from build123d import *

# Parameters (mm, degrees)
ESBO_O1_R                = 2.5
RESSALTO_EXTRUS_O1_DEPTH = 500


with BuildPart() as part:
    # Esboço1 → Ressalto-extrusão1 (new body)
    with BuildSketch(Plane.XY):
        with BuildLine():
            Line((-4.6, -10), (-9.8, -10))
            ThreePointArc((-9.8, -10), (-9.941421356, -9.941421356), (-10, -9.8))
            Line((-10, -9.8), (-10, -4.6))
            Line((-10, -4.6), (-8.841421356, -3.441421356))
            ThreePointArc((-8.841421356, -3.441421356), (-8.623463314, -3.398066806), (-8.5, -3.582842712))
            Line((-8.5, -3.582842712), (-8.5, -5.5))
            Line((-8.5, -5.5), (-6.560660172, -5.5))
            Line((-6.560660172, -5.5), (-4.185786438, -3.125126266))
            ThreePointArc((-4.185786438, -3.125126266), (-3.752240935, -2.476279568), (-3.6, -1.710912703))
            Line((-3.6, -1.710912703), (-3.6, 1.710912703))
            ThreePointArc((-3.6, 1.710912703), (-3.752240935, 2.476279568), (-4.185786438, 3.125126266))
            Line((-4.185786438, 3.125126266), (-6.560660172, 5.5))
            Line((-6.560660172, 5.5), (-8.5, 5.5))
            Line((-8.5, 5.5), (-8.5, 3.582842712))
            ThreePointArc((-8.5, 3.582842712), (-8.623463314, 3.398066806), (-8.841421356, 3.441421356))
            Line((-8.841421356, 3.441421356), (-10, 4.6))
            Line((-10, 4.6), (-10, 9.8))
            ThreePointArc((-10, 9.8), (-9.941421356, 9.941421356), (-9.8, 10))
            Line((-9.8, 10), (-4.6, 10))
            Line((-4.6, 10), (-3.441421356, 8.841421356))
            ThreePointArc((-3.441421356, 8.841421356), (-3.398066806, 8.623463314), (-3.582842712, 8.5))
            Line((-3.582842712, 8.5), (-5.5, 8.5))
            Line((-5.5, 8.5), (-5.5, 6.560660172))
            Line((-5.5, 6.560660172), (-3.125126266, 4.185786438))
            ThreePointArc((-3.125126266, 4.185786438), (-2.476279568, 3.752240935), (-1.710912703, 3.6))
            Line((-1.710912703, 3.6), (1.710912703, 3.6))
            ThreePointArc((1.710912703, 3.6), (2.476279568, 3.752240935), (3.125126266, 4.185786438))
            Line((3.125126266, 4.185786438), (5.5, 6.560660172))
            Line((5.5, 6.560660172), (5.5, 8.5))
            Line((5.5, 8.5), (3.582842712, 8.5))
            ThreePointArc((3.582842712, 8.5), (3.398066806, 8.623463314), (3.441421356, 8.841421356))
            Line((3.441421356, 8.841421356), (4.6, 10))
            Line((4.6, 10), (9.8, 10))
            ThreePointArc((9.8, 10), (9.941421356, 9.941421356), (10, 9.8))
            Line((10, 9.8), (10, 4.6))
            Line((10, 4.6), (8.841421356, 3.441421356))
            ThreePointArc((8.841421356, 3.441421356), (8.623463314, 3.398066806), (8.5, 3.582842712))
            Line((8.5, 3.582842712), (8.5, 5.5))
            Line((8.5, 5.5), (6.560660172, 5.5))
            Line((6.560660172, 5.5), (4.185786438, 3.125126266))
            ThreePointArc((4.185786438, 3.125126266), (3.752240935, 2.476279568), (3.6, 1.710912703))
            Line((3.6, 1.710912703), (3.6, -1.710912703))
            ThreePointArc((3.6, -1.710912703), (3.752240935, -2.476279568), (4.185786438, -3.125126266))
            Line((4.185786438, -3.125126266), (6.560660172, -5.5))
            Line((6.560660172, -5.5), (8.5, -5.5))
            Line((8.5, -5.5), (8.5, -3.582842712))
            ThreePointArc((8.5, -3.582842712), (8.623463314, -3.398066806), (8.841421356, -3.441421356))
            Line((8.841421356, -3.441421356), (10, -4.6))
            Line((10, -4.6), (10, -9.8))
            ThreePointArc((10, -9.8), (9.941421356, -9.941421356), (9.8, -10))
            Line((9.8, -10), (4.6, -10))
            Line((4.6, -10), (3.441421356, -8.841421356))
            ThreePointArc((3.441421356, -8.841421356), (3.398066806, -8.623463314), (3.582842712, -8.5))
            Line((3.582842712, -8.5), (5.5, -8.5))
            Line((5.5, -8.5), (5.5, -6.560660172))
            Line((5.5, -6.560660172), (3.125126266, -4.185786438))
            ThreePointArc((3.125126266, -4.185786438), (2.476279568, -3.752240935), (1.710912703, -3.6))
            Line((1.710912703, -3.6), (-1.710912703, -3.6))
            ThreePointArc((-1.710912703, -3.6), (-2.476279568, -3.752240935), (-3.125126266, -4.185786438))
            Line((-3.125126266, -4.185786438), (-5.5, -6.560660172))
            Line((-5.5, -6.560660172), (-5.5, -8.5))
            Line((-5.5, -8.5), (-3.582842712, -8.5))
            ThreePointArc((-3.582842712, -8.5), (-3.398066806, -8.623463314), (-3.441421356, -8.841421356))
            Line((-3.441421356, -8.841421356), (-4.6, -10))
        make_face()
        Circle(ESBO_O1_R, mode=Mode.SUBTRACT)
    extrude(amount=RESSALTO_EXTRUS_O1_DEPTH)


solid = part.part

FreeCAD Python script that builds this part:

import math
import FreeCAD as App
import Part
import Sketcher

doc = App.newDocument("Part")
body = doc.addObject("PartDesign::Body", "Body")

sketch1 = body.newObject("Sketcher::SketchObject", "Sketch")
sketch1.AttachmentSupport = (doc.getObject("XY_Plane"), [""])
sketch1.MapMode = "FlatFace"
sketch1.addGeometry([
    Part.LineSegment(App.Vector(-9.8, -10, 0), App.Vector(-4.6, -10, 0)),
    Part.LineSegment(App.Vector(-4.6, -10, 0), App.Vector(-3.44, -8.84, 0)),
    Part.ArcOfCircle(Part.Circle(App.Vector(-3.58, -8.7, 0), App.Vector(0, 0, 1), 0.2), math.radians(-45), math.radians(90)),
    Part.LineSegment(App.Vector(-3.58, -8.5, 0), App.Vector(-5.5, -8.5, 0)),
    Part.LineSegment(App.Vector(-5.5, -8.5, 0), App.Vector(-5.5, -6.56, 0)),
    Part.LineSegment(App.Vector(-5.5, -6.56, 0), App.Vector(-3.13, -4.19, 0)),
    Part.ArcOfCircle(Part.Circle(App.Vector(-1.71, -5.6, 0), App.Vector(0, 0, 1), 2), math.radians(90), math.radians(135)),
    Part.LineSegment(App.Vector(-1.71, -3.6, 0), App.Vector(1.71, -3.6, 0)),
    Part.ArcOfCircle(Part.Circle(App.Vector(1.71, -5.6, 0), App.Vector(0, 0, 1), 2), math.radians(45), math.radians(90)),
    Part.LineSegment(App.Vector(3.13, -4.19, 0), App.Vector(5.5, -6.56, 0)),
    Part.LineSegment(App.Vector(5.5, -6.56, 0), App.Vector(5.5, -8.5, 0)),
    Part.LineSegment(App.Vector(5.5, -8.5, 0), App.Vector(3.58, -8.5, 0)),
    Part.ArcOfCircle(Part.Circle(App.Vector(3.58, -8.7, 0), App.Vector(0, 0, 1), 0.2), math.radians(90), math.radians(225)),
    Part.LineSegment(App.Vector(3.44, -8.84, 0), App.Vector(4.6, -10, 0)),
    Part.LineSegment(App.Vector(4.6, -10, 0), App.Vector(9.8, -10, 0)),
    Part.ArcOfCircle(Part.Circle(App.Vector(9.8, -9.8, 0), App.Vector(0, 0, 1), 0.2), math.radians(-90), math.radians(0)),
    Part.LineSegment(App.Vector(10, -9.8, 0), App.Vector(10, -4.6, 0)),
    Part.LineSegment(App.Vector(10, -4.6, 0), App.Vector(8.84, -3.44, 0)),
    Part.ArcOfCircle(Part.Circle(App.Vector(8.7, -3.58, 0), App.Vector(0, 0, 1), 0.2), math.radians(45), math.radians(180)),
    Part.LineSegment(App.Vector(8.5, -3.58, 0), App.Vector(8.5, -5.5, 0)),
    Part.LineSegment(App.Vector(8.5, -5.5, 0), App.Vector(6.56, -5.5, 0)),
    Part.LineSegment(App.Vector(6.56, -5.5, 0), App.Vector(4.19, -3.13, 0)),
    Part.ArcOfCircle(Part.Circle(App.Vector(5.6, -1.71, 0), App.Vector(0, 0, 1), 2), math.radians(180), math.radians(225)),
    Part.LineSegment(App.Vector(3.6, -1.71, 0), App.Vector(3.6, 1.71, 0)),
    Part.ArcOfCircle(Part.Circle(App.Vector(5.6, 1.71, 0), App.Vector(0, 0, 1), 2), math.radians(135), math.radians(180)),
    Part.LineSegment(App.Vector(4.19, 3.13, 0), App.Vector(6.56, 5.5, 0)),
    Part.LineSegment(App.Vector(6.56, 5.5, 0), App.Vector(8.5, 5.5, 0)),
    Part.LineSegment(App.Vector(8.5, 5.5, 0), App.Vector(8.5, 3.58, 0)),
    Part.ArcOfCircle(Part.Circle(App.Vector(8.7, 3.58, 0), App.Vector(0, 0, 1), 0.2), math.radians(-180), math.radians(-45)),
    Part.LineSegment(App.Vector(8.84, 3.44, 0), App.Vector(10, 4.6, 0)),
    Part.LineSegment(App.Vector(10, 4.6, 0), App.Vector(10, 9.8, 0)),
    Part.ArcOfCircle(Part.Circle(App.Vector(9.8, 9.8, 0), App.Vector(0, 0, 1), 0.2), math.radians(0), math.radians(90)),
    Part.LineSegment(App.Vector(9.8, 10, 0), App.Vector(4.6, 10, 0)),
    Part.LineSegment(App.Vector(4.6, 10, 0), App.Vector(3.44, 8.84, 0)),
    Part.ArcOfCircle(Part.Circle(App.Vector(3.58, 8.7, 0), App.Vector(0, 0, 1), 0.2), math.radians(135), math.radians(270)),
    Part.LineSegment(App.Vector(3.58, 8.5, 0), App.Vector(5.5, 8.5, 0)),
    Part.LineSegment(App.Vector(5.5, 8.5, 0), App.Vector(5.5, 6.56, 0)),
    Part.LineSegment(App.Vector(5.5, 6.56, 0), App.Vector(3.13, 4.19, 0)),
    Part.ArcOfCircle(Part.Circle(App.Vector(1.71, 5.6, 0), App.Vector(0, 0, 1), 2), math.radians(-90), math.radians(-45)),
    Part.LineSegment(App.Vector(1.71, 3.6, 0), App.Vector(-1.71, 3.6, 0)),
    Part.ArcOfCircle(Part.Circle(App.Vector(-1.71, 5.6, 0), App.Vector(0, 0, 1), 2), math.radians(-135), math.radians(-90)),
    Part.LineSegment(App.Vector(-3.13, 4.19, 0), App.Vector(-5.5, 6.56, 0)),
    Part.LineSegment(App.Vector(-5.5, 6.56, 0), App.Vector(-5.5, 8.5, 0)),
    Part.LineSegment(App.Vector(-5.5, 8.5, 0), App.Vector(-3.58, 8.5, 0)),
    Part.ArcOfCircle(Part.Circle(App.Vector(-3.58, 8.7, 0), App.Vector(0, 0, 1), 0.2), math.radians(-90), math.radians(45)),
    Part.LineSegment(App.Vector(-3.44, 8.84, 0), App.Vector(-4.6, 10, 0)),
    Part.LineSegment(App.Vector(-4.6, 10, 0), App.Vector(-9.8, 10, 0)),
    Part.ArcOfCircle(Part.Circle(App.Vector(-9.8, 9.8, 0), App.Vector(0, 0, 1), 0.2), math.radians(90), math.radians(180)),
    Part.LineSegment(App.Vector(-10, 9.8, 0), App.Vector(-10, 4.6, 0)),
    Part.LineSegment(App.Vector(-10, 4.6, 0), App.Vector(-8.84, 3.44, 0)),
    Part.ArcOfCircle(Part.Circle(App.Vector(-8.7, 3.58, 0), App.Vector(0, 0, 1), 0.2), math.radians(-135), math.radians(0)),
    Part.LineSegment(App.Vector(-8.5, 3.58, 0), App.Vector(-8.5, 5.5, 0)),
    Part.LineSegment(App.Vector(-8.5, 5.5, 0), App.Vector(-6.56, 5.5, 0)),
    Part.LineSegment(App.Vector(-6.56, 5.5, 0), App.Vector(-4.19, 3.13, 0)),
    Part.ArcOfCircle(Part.Circle(App.Vector(-5.6, 1.71, 0), App.Vector(0, 0, 1), 2), math.radians(0), math.radians(45)),
    Part.LineSegment(App.Vector(-3.6, 1.71, 0), App.Vector(-3.6, -1.71, 0)),
    Part.ArcOfCircle(Part.Circle(App.Vector(-5.6, -1.71, 0), App.Vector(0, 0, 1), 2), math.radians(-45), math.radians(0)),
    Part.LineSegment(App.Vector(-4.19, -3.13, 0), App.Vector(-6.56, -5.5, 0)),
    Part.LineSegment(App.Vector(-6.56, -5.5, 0), App.Vector(-8.5, -5.5, 0)),
    Part.LineSegment(App.Vector(-8.5, -5.5, 0), App.Vector(-8.5, -3.58, 0)),
    Part.ArcOfCircle(Part.Circle(App.Vector(-8.7, -3.58, 0), App.Vector(0, 0, 1), 0.2), math.radians(0), math.radians(135)),
    Part.LineSegment(App.Vector(-8.84, -3.44, 0), App.Vector(-10, -4.6, 0)),
    Part.LineSegment(App.Vector(-10, -4.6, 0), App.Vector(-10, -9.8, 0)),
    Part.ArcOfCircle(Part.Circle(App.Vector(-9.8, -9.8, 0), App.Vector(0, 0, 1), 0.2), math.radians(-180), math.radians(-90)),
    Part.Circle(App.Vector(0, 0, 0), App.Vector(0, 0, 1), 2.5),
], False)
sketch1.addConstraint([
    Sketcher.Constraint("Coincident", 0, 2, 1, 1),
    Sketcher.Constraint("Tangent", 1, 2, 2, 1),
    Sketcher.Constraint("Tangent", 2, 2, 3, 1),
    Sketcher.Constraint("Coincident", 3, 2, 4, 1),
    Sketcher.Constraint("Coincident", 4, 2, 5, 1),
    Sketcher.Constraint("Tangent", 5, 2, 6, 2),
    Sketcher.Constraint("Tangent", 6, 1, 7, 1),
    Sketcher.Constraint("Tangent", 7, 2, 8, 2),
    Sketcher.Constraint("Tangent", 8, 1, 9, 1),
    Sketcher.Constraint("Coincident", 9, 2, 10, 1),
    Sketcher.Constraint("Coincident", 10, 2, 11, 1),
    Sketcher.Constraint("Tangent", 11, 2, 12, 1),
    Sketcher.Constraint("Tangent", 12, 2, 13, 1),
    Sketcher.Constraint("Coincident", 13, 2, 14, 1),
    Sketcher.Constraint("Tangent", 14, 2, 15, 1),
    Sketcher.Constraint("Tangent", 15, 2, 16, 1),
    Sketcher.Constraint("Coincident", 16, 2, 17, 1),
    Sketcher.Constraint("Tangent", 17, 2, 18, 1),
    Sketcher.Constraint("Tangent", 18, 2, 19, 1),
    Sketcher.Constraint("Coincident", 19, 2, 20, 1),
    Sketcher.Constraint("Coincident", 20, 2, 21, 1),
    Sketcher.Constraint("Tangent", 21, 2, 22, 2),
    Sketcher.Constraint("Tangent", 22, 1, 23, 1),
    Sketcher.Constraint("Tangent", 23, 2, 24, 2),
    Sketcher.Constraint("Tangent", 24, 1, 25, 1),
    Sketcher.Constraint("Coincident", 25, 2, 26, 1),
    Sketcher.Constraint("Coincident", 26, 2, 27, 1),
    Sketcher.Constraint("Tangent", 27, 2, 28, 1),
    Sketcher.Constraint("Tangent", 28, 2, 29, 1),
    Sketcher.Constraint("Coincident", 29, 2, 30, 1),
    Sketcher.Constraint("Tangent", 30, 2, 31, 1),
    Sketcher.Constraint("Tangent", 31, 2, 32, 1),
    Sketcher.Constraint("Coincident", 32, 2, 33, 1),
    Sketcher.Constraint("Tangent", 33, 2, 34, 1),
    Sketcher.Constraint("Tangent", 34, 2, 35, 1),
    Sketcher.Constraint("Coincident", 35, 2, 36, 1),
    Sketcher.Constraint("Coincident", 36, 2, 37, 1),
    Sketcher.Constraint("Tangent", 37, 2, 38, 2),
    Sketcher.Constraint("Tangent", 38, 1, 39, 1),
    Sketcher.Constraint("Tangent", 39, 2, 40, 2),
    Sketcher.Constraint("Tangent", 40, 1, 41, 1),
    Sketcher.Constraint("Coincident", 41, 2, 42, 1),
    Sketcher.Constraint("Coincident", 42, 2, 43, 1),
    Sketcher.Constraint("Tangent", 43, 2, 44, 1),
    Sketcher.Constraint("Tangent", 44, 2, 45, 1),
    Sketcher.Constraint("Coincident", 45, 2, 46, 1),
    Sketcher.Constraint("Tangent", 46, 2, 47, 1),
    Sketcher.Constraint("Tangent", 47, 2, 48, 1),
    Sketcher.Constraint("Coincident", 48, 2, 49, 1),
    Sketcher.Constraint("Tangent", 49, 2, 50, 1),
    Sketcher.Constraint("Tangent", 50, 2, 51, 1),
    Sketcher.Constraint("Coincident", 51, 2, 52, 1),
    Sketcher.Constraint("Coincident", 52, 2, 53, 1),
    Sketcher.Constraint("Tangent", 53, 2, 54, 2),
    Sketcher.Constraint("Tangent", 54, 1, 55, 1),
    Sketcher.Constraint("Tangent", 55, 2, 56, 2),
    Sketcher.Constraint("Tangent", 56, 1, 57, 1),
    Sketcher.Constraint("Coincident", 57, 2, 58, 1),
    Sketcher.Constraint("Coincident", 58, 2, 59, 1),
    Sketcher.Constraint("Tangent", 59, 2, 60, 1),
    Sketcher.Constraint("Tangent", 60, 2, 61, 1),
    Sketcher.Constraint("Coincident", 61, 2, 62, 1),
    Sketcher.Constraint("Tangent", 62, 2, 63, 1),
    Sketcher.Constraint("Tangent", 63, 2, 0, 1),
    Sketcher.Constraint("Horizontal", 0),
    Sketcher.Constraint("Horizontal", 3),
    Sketcher.Constraint("Vertical", 4),
    Sketcher.Constraint("Horizontal", 7),
    Sketcher.Constraint("Vertical", 10),
    Sketcher.Constraint("Horizontal", 11),
    Sketcher.Constraint("Horizontal", 14),
    Sketcher.Constraint("Vertical", 16),
    Sketcher.Constraint("Vertical", 19),
    Sketcher.Constraint("Horizontal", 20),
    Sketcher.Constraint("Vertical", 23),
    Sketcher.Constraint("Horizontal", 26),
    Sketcher.Constraint("Vertical", 27),
    Sketcher.Constraint("Vertical", 30),
    Sketcher.Constraint("Horizontal", 32),
    Sketcher.Constraint("Horizontal", 35),
    Sketcher.Constraint("Vertical", 36),
    Sketcher.Constraint("Horizontal", 39),
    Sketcher.Constraint("Vertical", 42),
    Sketcher.Constraint("Horizontal", 43),
    Sketcher.Constraint("Horizontal", 46),
    Sketcher.Constraint("Vertical", 48),
    Sketcher.Constraint("Vertical", 51),
    Sketcher.Constraint("Horizontal", 52),
    Sketcher.Constraint("Vertical", 55),
    Sketcher.Constraint("Horizontal", 58),
    Sketcher.Constraint("Vertical", 59),
    Sketcher.Constraint("Vertical", 62),
    Sketcher.Constraint("Coincident", 64, 3, -1, 1),
    Sketcher.Constraint("Equal", 6, 8),
    Sketcher.Constraint("Equal", 2, 12),
    Sketcher.Constraint("Equal", 12, 15),
    Sketcher.Constraint("Equal", 15, 18),
    Sketcher.Constraint("Equal", 8, 22),
    Sketcher.Constraint("Equal", 22, 24),
    Sketcher.Constraint("Equal", 18, 28),
    Sketcher.Constraint("Equal", 28, 31),
    Sketcher.Constraint("Equal", 31, 34),
    Sketcher.Constraint("Equal", 24, 38),
    Sketcher.Constraint("Equal", 38, 40),
    Sketcher.Constraint("Equal", 34, 44),
    Sketcher.Constraint("Equal", 44, 47),
    Sketcher.Constraint("Equal", 47, 50),
    Sketcher.Constraint("Equal", 40, 54),
    Sketcher.Constraint("Equal", 54, 56),
    Sketcher.Constraint("Equal", 50, 60),
    Sketcher.Constraint("Equal", 60, 63),
    Sketcher.Constraint("Symmetric", 2, 3, 34, 3, -1, 1),
    Sketcher.Constraint("Symmetric", 6, 3, 38, 3, -1, 1),
    Sketcher.Constraint("Symmetric", 12, 3, 44, 3, -1, 1),
    Sketcher.Constraint("Symmetric", 15, 3, 47, 3, -1, 1),
    Sketcher.Constraint("Symmetric", 18, 3, 50, 3, -1, 1),
    Sketcher.Constraint("Symmetric", 22, 3, 54, 3, -1, 1),
    Sketcher.Constraint("Symmetric", 28, 3, 60, 3, -1, 1),
    Sketcher.Constraint("Symmetric", 31, 3, 63, 3, -1, 1),
    Sketcher.Constraint("Symmetric", 4, 2, 36, 2, -1, 1),
    Sketcher.Constraint("Symmetric", 8, 1, 40, 1, -1, 1),
    Sketcher.Constraint("Symmetric", 20, 2, 52, 2, -1, 1),
    Sketcher.Constraint("Symmetric", 24, 1, 56, 1, -1, 1),
    Sketcher.Constraint("Symmetric", 2, 3, 12, 3, -2),
    Sketcher.Constraint("Symmetric", 31, 3, 47, 3, -2),
    Sketcher.Constraint("Symmetric", 28, 3, 50, 3, -2),
    Sketcher.Constraint("Symmetric", 5, 2, 8, 1, -2),
    Sketcher.Constraint("Symmetric", 25, 2, 52, 2, -2),
    Sketcher.Constraint("Parallel", 1, 5),
    Sketcher.Constraint("Perpendicular", 5, 9),
    Sketcher.Constraint("Parallel", 9, 13),
    Sketcher.Constraint("Parallel", 13, 17),
    Sketcher.Constraint("Parallel", 17, 21),
    Sketcher.Constraint("Perpendicular", 21, 25),
    Sketcher.Constraint("Parallel", 25, 29),
    Sketcher.Constraint("Parallel", 29, 33),
    Sketcher.Constraint("Parallel", 41, 45),
    Sketcher.Constraint("Parallel", 45, 49),
    Sketcher.Constraint("Parallel", 57, 61),
    Sketcher.Constraint("Horizontal", 4, 2, 9, 2),
    Sketcher.Constraint("Horizontal", 36, 2, 41, 2),
    Sketcher.Constraint("Horizontal", 20, 2, 57, 2),
    Sketcher.Constraint("Equal", 58, 4),
    Sketcher.Constraint("Equal", 46, 16),
    Sketcher.Constraint("Equal", 43, 19),
    Sketcher.Constraint("Equal", 39, 23),
    Sketcher.Constraint("Equal", 13, 17),
    Sketcher.Constraint("Equal", 9, 21),
    Sketcher.Constraint("Diameter", 64, 5.0),
    Sketcher.Constraint("Radius", 6, 2.0),
    Sketcher.Constraint("Radius", 2, 0.2),
    Sketcher.Constraint("DistanceX", 0, 1, 0, 2, 5.2),
    Sketcher.Constraint("DistanceY", 0, 2, -1, 1, 10.0),
    Sketcher.Constraint("DistanceY", 2, 3, -1, 1, 8.7),
    Sketcher.Constraint("DistanceY", 6, 3, -1, 1, 5.6),
    Sketcher.Constraint("DistanceX", 3, 2, -1, 1, 5.5),
    Sketcher.Constraint("DistanceX", 20, 2, 20, 1, 1.93934),
])
pad1 = body.newObject("PartDesign::Pad", "Pad")
pad1.Profile = sketch1
pad1.Length = 500

doc.recompute()
